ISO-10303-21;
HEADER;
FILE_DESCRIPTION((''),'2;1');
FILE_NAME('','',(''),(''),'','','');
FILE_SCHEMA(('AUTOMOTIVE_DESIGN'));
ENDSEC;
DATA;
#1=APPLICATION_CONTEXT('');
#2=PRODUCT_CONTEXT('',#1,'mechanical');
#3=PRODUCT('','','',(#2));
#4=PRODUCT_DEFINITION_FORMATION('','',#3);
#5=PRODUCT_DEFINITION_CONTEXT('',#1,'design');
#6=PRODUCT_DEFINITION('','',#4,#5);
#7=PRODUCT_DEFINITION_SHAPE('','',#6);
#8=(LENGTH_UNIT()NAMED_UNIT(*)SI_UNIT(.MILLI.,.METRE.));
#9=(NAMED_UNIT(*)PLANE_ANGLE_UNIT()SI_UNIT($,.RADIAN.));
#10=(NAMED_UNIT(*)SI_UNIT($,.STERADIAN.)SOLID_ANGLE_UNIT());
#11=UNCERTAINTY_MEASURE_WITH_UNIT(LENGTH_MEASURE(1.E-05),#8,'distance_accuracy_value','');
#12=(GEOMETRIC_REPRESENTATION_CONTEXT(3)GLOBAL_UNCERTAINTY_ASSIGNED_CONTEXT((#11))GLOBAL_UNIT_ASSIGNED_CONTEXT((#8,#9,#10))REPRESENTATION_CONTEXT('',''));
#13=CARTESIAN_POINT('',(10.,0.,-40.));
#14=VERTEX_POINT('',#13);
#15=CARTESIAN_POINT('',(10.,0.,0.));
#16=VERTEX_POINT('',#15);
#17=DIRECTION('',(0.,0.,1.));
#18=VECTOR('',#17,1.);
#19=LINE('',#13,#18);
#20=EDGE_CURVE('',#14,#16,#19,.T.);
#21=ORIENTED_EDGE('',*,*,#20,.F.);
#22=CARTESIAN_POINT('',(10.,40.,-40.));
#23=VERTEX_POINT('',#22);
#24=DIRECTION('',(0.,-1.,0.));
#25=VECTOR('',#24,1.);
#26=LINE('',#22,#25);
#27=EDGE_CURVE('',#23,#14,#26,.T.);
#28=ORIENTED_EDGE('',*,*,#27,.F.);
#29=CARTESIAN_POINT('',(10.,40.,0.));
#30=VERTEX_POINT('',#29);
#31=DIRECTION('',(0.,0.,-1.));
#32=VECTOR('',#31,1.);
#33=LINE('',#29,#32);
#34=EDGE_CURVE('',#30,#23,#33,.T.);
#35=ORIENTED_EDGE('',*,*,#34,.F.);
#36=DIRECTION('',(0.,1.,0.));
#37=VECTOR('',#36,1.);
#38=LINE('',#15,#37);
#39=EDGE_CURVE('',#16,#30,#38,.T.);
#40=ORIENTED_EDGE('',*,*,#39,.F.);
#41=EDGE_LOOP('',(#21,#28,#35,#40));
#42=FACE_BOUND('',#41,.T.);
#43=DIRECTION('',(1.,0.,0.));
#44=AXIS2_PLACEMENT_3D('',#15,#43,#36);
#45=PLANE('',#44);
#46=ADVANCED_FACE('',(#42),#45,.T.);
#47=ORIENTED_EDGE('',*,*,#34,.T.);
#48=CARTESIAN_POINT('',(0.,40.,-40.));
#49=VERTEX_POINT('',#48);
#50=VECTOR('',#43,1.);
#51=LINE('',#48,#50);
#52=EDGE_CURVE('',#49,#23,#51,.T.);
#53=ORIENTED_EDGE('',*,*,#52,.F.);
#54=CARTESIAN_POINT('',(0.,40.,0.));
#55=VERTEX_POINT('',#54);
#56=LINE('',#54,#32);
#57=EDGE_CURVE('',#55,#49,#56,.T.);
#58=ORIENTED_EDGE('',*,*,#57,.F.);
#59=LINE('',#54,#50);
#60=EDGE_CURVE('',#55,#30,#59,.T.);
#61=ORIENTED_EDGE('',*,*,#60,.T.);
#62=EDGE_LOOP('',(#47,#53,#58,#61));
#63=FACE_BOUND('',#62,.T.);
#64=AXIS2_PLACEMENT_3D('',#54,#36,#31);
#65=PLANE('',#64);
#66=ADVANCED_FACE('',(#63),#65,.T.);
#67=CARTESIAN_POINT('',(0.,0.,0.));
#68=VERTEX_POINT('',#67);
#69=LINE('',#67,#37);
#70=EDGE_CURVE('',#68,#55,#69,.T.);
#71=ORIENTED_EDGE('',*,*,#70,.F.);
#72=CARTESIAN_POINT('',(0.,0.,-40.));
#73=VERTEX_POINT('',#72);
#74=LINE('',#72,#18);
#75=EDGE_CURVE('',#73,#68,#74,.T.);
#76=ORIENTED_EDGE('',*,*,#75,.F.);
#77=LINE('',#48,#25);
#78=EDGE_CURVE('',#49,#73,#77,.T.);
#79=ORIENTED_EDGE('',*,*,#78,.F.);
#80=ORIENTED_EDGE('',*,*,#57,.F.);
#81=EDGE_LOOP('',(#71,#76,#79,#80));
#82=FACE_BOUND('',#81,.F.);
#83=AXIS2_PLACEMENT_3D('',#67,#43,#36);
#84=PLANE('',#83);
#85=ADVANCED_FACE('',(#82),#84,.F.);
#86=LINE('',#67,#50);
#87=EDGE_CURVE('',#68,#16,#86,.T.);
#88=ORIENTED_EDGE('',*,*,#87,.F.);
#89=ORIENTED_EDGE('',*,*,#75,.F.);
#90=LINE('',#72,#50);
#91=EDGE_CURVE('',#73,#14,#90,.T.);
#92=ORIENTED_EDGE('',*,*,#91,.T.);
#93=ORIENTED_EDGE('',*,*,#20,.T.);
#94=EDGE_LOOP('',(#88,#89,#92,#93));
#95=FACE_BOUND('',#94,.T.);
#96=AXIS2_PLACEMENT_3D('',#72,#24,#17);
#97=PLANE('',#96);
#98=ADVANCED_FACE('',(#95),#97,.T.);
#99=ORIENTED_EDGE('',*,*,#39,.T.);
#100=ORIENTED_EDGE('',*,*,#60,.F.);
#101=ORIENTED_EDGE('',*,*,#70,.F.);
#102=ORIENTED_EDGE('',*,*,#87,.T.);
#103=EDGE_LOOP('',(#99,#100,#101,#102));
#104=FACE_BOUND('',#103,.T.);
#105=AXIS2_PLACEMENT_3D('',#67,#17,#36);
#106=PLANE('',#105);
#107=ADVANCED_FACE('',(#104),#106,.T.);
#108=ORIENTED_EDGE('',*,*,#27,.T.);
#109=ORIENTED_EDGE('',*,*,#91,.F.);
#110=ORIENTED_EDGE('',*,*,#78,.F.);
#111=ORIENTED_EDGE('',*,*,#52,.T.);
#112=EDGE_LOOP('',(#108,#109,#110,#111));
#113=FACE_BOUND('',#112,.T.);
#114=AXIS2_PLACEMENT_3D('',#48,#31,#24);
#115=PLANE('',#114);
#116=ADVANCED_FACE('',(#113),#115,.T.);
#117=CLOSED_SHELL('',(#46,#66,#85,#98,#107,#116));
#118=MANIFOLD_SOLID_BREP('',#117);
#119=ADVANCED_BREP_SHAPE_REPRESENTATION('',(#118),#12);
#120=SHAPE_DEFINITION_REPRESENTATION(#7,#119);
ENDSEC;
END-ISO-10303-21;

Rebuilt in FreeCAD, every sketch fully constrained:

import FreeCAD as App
import Part
import Sketcher

V = App.Vector

doc = App.newDocument("Part")
body = doc.addObject("PartDesign::Body", "Body")

sketch1 = doc.addObject("Sketcher::SketchObject", "Sketch")
body.addObject(sketch1)
sketch1.AttachmentSupport = (doc.YZ_Plane, [""])
sketch1.MapMode = "FlatFace"
sketch1.addGeometry([
    Part.LineSegment(V(40, 0, 0), V(0, 0, 0)),
    Part.LineSegment(V(0, 0, 0), V(0, -40, 0)),
    Part.LineSegment(V(0, -40, 0), V(40, -40, 0)),
    Part.LineSegment(V(40, -40, 0), V(40, 0, 0)),
], False)
sketch1.addConstraint([
    Sketcher.Constraint("Coincident", 0, 2, 1, 1),
    Sketcher.Constraint("Coincident", 1, 2, 2, 1),
    Sketcher.Constraint("Coincident", 2, 2, 3, 1),
    Sketcher.Constraint("Coincident", 3, 2, 0, 1),
    Sketcher.Constraint("Horizontal", 0),
    Sketcher.Constraint("Vertical", 1),
    Sketcher.Constraint("Horizontal", 2),
    Sketcher.Constraint("Vertical", 3),
    Sketcher.Constraint("Coincident", 0, 2, -1, 1),
    Sketcher.Constraint("Equal", 2, 1),
    Sketcher.Constraint("DistanceX", 0, 2, 0, 1, 40.0),
])
pad1 = doc.addObject("PartDesign::Pad", "Pad")
body.addObject(pad1)
pad1.Profile = sketch1
pad1.Length = 10

doc.recompute()
